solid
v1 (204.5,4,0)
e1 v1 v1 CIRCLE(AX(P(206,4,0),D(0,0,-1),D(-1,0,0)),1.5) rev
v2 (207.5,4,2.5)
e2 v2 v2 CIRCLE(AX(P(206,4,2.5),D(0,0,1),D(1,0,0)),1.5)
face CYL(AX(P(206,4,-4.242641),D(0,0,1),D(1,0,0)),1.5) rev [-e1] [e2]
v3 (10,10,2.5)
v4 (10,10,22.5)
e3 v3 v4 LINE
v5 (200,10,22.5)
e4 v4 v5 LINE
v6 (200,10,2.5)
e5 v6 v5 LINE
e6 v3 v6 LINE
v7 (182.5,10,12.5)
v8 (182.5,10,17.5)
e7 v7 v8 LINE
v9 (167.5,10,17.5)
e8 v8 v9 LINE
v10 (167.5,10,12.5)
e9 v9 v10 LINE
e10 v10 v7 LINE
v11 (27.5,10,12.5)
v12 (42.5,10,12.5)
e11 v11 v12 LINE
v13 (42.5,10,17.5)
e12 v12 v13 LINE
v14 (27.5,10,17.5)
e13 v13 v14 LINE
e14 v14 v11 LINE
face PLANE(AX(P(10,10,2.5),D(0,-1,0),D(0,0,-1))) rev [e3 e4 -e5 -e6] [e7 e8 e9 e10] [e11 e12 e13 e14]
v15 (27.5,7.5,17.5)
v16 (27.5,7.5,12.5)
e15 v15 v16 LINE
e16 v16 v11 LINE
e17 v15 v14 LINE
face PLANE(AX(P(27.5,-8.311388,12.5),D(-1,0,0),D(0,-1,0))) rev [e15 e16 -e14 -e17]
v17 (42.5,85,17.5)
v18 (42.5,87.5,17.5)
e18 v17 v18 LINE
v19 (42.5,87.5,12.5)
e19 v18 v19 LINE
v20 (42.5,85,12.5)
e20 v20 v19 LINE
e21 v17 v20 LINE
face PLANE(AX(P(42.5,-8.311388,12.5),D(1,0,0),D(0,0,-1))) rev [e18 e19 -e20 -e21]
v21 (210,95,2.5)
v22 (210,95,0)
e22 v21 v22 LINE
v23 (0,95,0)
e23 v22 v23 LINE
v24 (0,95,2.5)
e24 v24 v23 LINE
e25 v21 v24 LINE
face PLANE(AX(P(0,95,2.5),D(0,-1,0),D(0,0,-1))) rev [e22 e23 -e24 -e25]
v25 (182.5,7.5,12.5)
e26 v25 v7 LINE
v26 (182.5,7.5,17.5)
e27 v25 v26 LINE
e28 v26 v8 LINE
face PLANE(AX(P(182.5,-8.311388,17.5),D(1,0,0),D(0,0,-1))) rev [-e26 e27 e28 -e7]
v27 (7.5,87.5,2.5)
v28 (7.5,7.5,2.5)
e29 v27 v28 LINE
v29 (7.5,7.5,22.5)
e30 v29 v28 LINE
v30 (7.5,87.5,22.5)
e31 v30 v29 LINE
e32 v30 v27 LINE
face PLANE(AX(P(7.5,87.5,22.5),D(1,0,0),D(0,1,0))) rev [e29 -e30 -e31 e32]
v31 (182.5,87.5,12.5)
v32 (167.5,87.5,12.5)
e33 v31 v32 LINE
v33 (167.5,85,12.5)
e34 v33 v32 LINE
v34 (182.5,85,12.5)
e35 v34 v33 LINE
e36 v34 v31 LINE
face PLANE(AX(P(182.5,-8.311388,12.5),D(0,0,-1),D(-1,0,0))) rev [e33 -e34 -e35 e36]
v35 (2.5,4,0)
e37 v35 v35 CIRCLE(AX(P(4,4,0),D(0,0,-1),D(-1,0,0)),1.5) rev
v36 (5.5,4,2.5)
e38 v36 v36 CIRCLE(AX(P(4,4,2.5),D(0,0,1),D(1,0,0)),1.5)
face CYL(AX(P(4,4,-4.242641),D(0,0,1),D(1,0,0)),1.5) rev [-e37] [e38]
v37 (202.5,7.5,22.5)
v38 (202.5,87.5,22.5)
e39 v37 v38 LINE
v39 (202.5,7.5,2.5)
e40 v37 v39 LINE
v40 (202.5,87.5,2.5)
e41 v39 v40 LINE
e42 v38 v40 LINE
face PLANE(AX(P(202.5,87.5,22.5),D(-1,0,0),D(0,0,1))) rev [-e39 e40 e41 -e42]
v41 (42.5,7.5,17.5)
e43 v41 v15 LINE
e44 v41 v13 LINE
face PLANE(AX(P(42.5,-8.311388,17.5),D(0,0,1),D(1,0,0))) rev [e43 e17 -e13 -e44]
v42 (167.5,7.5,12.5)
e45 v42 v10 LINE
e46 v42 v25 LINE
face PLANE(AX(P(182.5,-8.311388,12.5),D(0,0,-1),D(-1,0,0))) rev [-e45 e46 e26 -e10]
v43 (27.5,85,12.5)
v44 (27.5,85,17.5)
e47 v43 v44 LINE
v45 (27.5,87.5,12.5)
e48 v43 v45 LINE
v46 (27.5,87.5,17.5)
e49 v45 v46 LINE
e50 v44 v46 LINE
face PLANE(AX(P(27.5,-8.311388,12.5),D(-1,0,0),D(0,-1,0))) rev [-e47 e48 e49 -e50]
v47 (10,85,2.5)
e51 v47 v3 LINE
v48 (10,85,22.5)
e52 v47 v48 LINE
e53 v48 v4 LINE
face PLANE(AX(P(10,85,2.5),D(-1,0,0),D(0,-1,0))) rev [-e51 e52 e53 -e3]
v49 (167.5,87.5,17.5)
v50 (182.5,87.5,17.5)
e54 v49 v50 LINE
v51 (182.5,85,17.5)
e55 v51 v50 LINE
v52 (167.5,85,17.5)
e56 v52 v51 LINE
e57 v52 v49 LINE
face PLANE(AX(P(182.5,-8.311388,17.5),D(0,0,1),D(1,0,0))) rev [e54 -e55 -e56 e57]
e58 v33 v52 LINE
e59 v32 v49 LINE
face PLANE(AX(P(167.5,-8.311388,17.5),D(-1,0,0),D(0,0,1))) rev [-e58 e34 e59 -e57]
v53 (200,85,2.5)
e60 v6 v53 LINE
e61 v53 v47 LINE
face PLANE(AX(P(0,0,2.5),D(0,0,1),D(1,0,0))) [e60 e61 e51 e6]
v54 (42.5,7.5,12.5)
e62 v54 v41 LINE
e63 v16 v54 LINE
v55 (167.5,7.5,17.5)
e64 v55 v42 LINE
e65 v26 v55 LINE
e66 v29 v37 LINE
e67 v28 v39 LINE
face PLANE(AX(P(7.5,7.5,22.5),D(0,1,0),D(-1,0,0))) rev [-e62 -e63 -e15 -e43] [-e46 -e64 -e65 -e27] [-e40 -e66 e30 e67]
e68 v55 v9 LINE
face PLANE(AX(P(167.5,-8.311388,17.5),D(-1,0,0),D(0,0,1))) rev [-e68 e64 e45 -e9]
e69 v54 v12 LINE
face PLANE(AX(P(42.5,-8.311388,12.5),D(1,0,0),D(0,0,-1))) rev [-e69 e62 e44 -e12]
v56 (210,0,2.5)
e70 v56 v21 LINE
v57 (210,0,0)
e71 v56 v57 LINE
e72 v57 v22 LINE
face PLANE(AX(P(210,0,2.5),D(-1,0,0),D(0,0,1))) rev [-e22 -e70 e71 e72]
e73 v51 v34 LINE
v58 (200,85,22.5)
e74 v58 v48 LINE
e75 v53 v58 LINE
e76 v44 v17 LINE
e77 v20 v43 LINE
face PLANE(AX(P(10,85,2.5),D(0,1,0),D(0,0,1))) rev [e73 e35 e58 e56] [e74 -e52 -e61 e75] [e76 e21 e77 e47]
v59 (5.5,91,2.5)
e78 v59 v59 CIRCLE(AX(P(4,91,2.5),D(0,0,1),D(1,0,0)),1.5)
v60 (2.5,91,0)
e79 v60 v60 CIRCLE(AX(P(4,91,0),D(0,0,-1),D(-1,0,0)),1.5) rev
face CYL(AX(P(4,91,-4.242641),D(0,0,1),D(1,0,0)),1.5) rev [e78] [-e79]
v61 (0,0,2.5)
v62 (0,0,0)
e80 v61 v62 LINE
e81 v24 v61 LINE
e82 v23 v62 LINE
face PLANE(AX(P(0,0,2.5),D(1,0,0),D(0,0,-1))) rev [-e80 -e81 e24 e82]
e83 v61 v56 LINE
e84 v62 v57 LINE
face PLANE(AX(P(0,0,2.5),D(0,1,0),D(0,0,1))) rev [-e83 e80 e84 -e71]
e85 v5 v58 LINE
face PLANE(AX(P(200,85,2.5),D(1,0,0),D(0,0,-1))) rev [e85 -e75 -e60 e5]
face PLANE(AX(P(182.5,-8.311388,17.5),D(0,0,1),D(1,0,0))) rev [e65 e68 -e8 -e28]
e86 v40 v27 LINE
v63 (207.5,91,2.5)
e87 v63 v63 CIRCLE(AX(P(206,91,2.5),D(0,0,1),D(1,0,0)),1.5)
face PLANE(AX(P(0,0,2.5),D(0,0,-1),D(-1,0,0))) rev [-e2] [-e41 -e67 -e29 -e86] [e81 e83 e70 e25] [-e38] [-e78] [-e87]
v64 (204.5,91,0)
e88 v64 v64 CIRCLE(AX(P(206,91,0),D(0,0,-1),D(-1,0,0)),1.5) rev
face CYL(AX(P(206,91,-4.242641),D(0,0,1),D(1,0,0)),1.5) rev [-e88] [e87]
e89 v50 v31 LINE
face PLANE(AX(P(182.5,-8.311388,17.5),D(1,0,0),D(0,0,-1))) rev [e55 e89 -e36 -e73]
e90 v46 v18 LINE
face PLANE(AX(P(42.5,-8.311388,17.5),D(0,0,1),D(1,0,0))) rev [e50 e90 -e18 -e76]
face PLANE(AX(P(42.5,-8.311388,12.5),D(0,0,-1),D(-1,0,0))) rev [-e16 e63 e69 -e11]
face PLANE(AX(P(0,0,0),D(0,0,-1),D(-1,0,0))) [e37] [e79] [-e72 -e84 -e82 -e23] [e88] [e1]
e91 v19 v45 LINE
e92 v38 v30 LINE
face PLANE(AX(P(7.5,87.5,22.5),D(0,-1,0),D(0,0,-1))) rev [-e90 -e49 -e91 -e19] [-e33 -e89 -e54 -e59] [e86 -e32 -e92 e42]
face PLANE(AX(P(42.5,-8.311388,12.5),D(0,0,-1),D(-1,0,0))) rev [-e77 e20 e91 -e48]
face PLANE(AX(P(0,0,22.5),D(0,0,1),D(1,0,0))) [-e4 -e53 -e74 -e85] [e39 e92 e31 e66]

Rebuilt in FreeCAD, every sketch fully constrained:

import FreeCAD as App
import Part
import Sketcher

V = App.Vector

doc = App.newDocument("Part")
body = doc.addObject("PartDesign::Body", "Body")

# Sketch on XY plane
sketch1 = doc.addObject("Sketcher::SketchObject", "Sketch")
body.addObject(sketch1)
sketch1.AttachmentSupport = (doc.XY_Plane, [""])
sketch1.MapMode = "FlatFace"
sketch1.addGeometry([
    Part.LineSegment(V(0, 95, 0), V(0, 0, 0)),
    Part.LineSegment(V(0, 0, 0), V(210, 0, 0)),
    Part.LineSegment(V(210, 0, 0), V(210, 95, 0)),
    Part.LineSegment(V(210, 95, 0), V(0, 95, 0)),
], False)
sketch1.addConstraint([
    Sketcher.Constraint("Coincident", 0, 2, 1, 1),
    Sketcher.Constraint("Coincident", 1, 2, 2, 1),
    Sketcher.Constraint("Coincident", 2, 2, 3, 1),
    Sketcher.Constraint("Coincident", 3, 2, 0, 1),
    Sketcher.Constraint("Vertical", 0),
    Sketcher.Constraint("Horizontal", 1),
    Sketcher.Constraint("Vertical", 2),
    Sketcher.Constraint("Horizontal", 3),
    Sketcher.Constraint("Coincident", 0, 2, -1, 1),
    Sketcher.Constraint("DistanceX", 1, 1, 1, 2, 210.0),
    Sketcher.Constraint("DistanceY", 0, 2, 0, 1, 95.0),
])
pad1 = doc.addObject("PartDesign::Pad", "Pad")
body.addObject(pad1)
pad1.Profile = sketch1
pad1.Length = 2.5

# Sketch on XY plane
sketch2 = doc.addObject("Sketcher::SketchObject", "Sketch001")
body.addObject(sketch2)
sketch2.AttachmentSupport = (doc.XY_Plane, [""])
sketch2.MapMode = "FlatFace"
sketch2.AttachmentOffset = App.Placement(V(0, 0, 2.5), App.Rotation())
sketch2.addGeometry([
    Part.LineSegment(V(8, 88, 0), V(8, 8, 0)),
    Part.LineSegment(V(8, 8, 0), V(202, 8, 0)),
    Part.LineSegment(V(202, 8, 0), V(202, 88, 0)),
    Part.LineSegment(V(202, 88, 0), V(8, 88, 0)),
], False)
sketch2.addConstraint([
    Sketcher.Constraint("Coincident", 0, 2, 1, 1),
    Sketcher.Constraint("Coincident", 1, 2, 2, 1),
    Sketcher.Constraint("Coincident", 2, 2, 3, 1),
    Sketcher.Constraint("Coincident", 3, 2, 0, 1),
    Sketcher.Constraint("Vertical", 0),
    Sketcher.Constraint("Horizontal", 1),
    Sketcher.Constraint("Vertical", 2),
    Sketcher.Constraint("Horizontal", 3),
    Sketcher.Constraint("DistanceX", 1, 1, 1, 2, 195.0),
    Sketcher.Constraint("DistanceY", 0, 2, 0, 1, 80.0),
    Sketcher.Constraint("DistanceX", -1, 1, 0, 2, 7.5),
    Sketcher.Constraint("DistanceY", -1, 1, 0, 2, 7.5),
])
pad2 = doc.addObject("PartDesign::Pad", "Pad001")
body.addObject(pad2)
pad2.Profile = sketch2
pad2.Length = 20

# Sketch on XY plane
sketch3 = doc.addObject("Sketcher::SketchObject", "Sketch002")
body.addObject(sketch3)
sketch3.AttachmentSupport = (doc.XY_Plane, [""])
sketch3.MapMode = "FlatFace"
sketch3.AttachmentOffset = App.Placement(V(0, 0, 22.5), App.Rotation())
sketch3.addGeometry([
    Part.LineSegment(V(10, 85, 0), V(10, 10, 0)),
    Part.LineSegment(V(10, 10, 0), V(200, 10, 0)),
    Part.LineSegment(V(200, 10, 0), V(200, 85, 0)),
    Part.LineSegment(V(200, 85, 0), V(10, 85, 0)),
], False)
sketch3.addConstraint([
    Sketcher.Constraint("Coincident", 0, 2, 1, 1),
    Sketcher.Constraint("Coincident", 1, 2, 2, 1),
    Sketcher.Constraint("Coincident", 2, 2, 3, 1),
    Sketcher.Constraint("Coincident", 3, 2, 0, 1),
    Sketcher.Constraint("Vertical", 0),
    Sketcher.Constraint("Horizontal", 1),
    Sketcher.Constraint("Vertical", 2),
    Sketcher.Constraint("Horizontal", 3),
    Sketcher.Constraint("DistanceX", 1, 1, 1, 2, 190.0),
    Sketcher.Constraint("DistanceY", 0, 2, 0, 1, 75.0),
    Sketcher.Constraint("DistanceX", -1, 1, 0, 2, 10.0),
    Sketcher.Constraint("DistanceY", -1, 1, 0, 2, 10.0),
])
pocket1 = doc.addObject("PartDesign::Pocket", "Pocket")
body.addObject(pocket1)
pocket1.Profile = sketch3
pocket1.Length = 20

# Sketch on XZ plane
sketch4 = doc.addObject("Sketcher::SketchObject", "Sketch003")
body.addObject(sketch4)
sketch4.AttachmentSupport = (doc.XZ_Plane, [""])
sketch4.MapMode = "FlatFace"
sketch4.AttachmentOffset = App.Placement(V(0, 0, -87.5), App.Rotation())
sketch4.addGeometry([
    Part.LineSegment(V(168, 12, 0), V(168, 18, 0)),  # 0
    Part.LineSegment(V(168, 18, 0), V(182, 18, 0)),  # 1
    Part.LineSegment(V(182, 18, 0), V(182, 12, 0)),  # 2
    Part.LineSegment(V(182, 12, 0), V(168, 12, 0)),  # 3
    Part.LineSegment(V(28, 12, 0), V(28, 18, 0)),  # 4
    Part.LineSegment(V(28, 18, 0), V(42, 18, 0)),  # 5
    Part.LineSegment(V(42, 18, 0), V(42, 12, 0)),  # 6
    Part.LineSegment(V(42, 12, 0), V(28, 12, 0)),  # 7
], False)
sketch4.addConstraint([
    Sketcher.Constraint("Coincident", 0, 2, 1, 1),
    Sketcher.Constraint("Coincident", 1, 2, 2, 1),
    Sketcher.Constraint("Coincident", 2, 2, 3, 1),
    Sketcher.Constraint("Coincident", 3, 2, 0, 1),
    Sketcher.Constraint("Coincident", 4, 2, 5, 1),
    Sketcher.Constraint("Coincident", 5, 2, 6, 1),
    Sketcher.Constraint("Coincident", 6, 2, 7, 1),
    Sketcher.Constraint("Coincident", 7, 2, 4, 1),
    Sketcher.Constraint("Vertical", 0),
    Sketcher.Constraint("Horizontal", 1),
    Sketcher.Constraint("Vertical", 2),
    Sketcher.Constraint("Horizontal", 3),
    Sketcher.Constraint("Vertical", 4),
    Sketcher.Constraint("Horizontal", 5),
    Sketcher.Constraint("Vertical", 6),
    Sketcher.Constraint("Horizontal", 7),
    Sketcher.Constraint("Horizontal", 1, 2, 4, 2),
    Sketcher.Constraint("Horizontal", 3, 2, 6, 2),
    Sketcher.Constraint("Equal", 3, 5),
    Sketcher.Constraint("DistanceX", 1, 1, 1, 2, 15.0),
    Sketcher.Constraint("DistanceY", 0, 1, 0, 2, 5.0),
    Sketcher.Constraint("DistanceX", 4, 2, 0, 2, 140.0),
    Sketcher.Constraint("DistanceX", -1, 1, 0, 2, 167.5),
    Sketcher.Constraint("DistanceY", -1, 1, 0, 2, 17.5),
])
pocket2 = doc.addObject("PartDesign::Pocket", "Pocket001")
body.addObject(pocket2)
pocket2.Profile = sketch4
pocket2.Length = 80
pocket2.Reversed = True

# Sketch on XY plane
sketch5 = doc.addObject("Sketcher::SketchObject", "Sketch004")
body.addObject(sketch5)
sketch5.AttachmentSupport = (doc.XY_Plane, [""])
sketch5.MapMode = "FlatFace"
sketch5.AttachmentOffset = App.Placement(V(0, 0, 2.5), App.Rotation())
sketch5.addGeometry([
    Part.Circle(V(4, 91, 0), V(0, 0, 1), 1.5),
    Part.Circle(V(206, 91, 0), V(0, 0, 1), 1.5),
    Part.Circle(V(206, 4, 0), V(0, 0, 1), 1.5),
    Part.Circle(V(4, 4, 0), V(0, 0, 1), 1.5),
], False)
sketch5.addConstraint([
    Sketcher.Constraint("Equal", 0, 1),
    Sketcher.Constraint("Equal", 1, 2),
    Sketcher.Constraint("Equal", 2, 3),
    Sketcher.Constraint("Horizontal", 0, 3, 1, 3),
    Sketcher.Constraint("Horizontal", 2, 3, 3, 3),
    Sketcher.Constraint("Vertical", 1, 3, 2, 3),
    Sketcher.Constraint("Vertical", 0, 3, 3, 3),
    Sketcher.Constraint("Diameter", 0, 3.0),
    Sketcher.Constraint("DistanceX", -1, 1, 0, 3, 4.0),
    Sketcher.Constraint("DistanceY", -1, 1, 0, 3, 91.0),
    Sketcher.Constraint("DistanceX", -1, 1, 1, 3, 206.0),
    Sketcher.Constraint("DistanceY", -1, 1, 2, 3, 4.0),
])
pocket3 = doc.addObject("PartDesign::Pocket", "Pocket002")
body.addObject(pocket3)
pocket3.Profile = sketch5
pocket3.Length = 2.5

doc.recompute()
